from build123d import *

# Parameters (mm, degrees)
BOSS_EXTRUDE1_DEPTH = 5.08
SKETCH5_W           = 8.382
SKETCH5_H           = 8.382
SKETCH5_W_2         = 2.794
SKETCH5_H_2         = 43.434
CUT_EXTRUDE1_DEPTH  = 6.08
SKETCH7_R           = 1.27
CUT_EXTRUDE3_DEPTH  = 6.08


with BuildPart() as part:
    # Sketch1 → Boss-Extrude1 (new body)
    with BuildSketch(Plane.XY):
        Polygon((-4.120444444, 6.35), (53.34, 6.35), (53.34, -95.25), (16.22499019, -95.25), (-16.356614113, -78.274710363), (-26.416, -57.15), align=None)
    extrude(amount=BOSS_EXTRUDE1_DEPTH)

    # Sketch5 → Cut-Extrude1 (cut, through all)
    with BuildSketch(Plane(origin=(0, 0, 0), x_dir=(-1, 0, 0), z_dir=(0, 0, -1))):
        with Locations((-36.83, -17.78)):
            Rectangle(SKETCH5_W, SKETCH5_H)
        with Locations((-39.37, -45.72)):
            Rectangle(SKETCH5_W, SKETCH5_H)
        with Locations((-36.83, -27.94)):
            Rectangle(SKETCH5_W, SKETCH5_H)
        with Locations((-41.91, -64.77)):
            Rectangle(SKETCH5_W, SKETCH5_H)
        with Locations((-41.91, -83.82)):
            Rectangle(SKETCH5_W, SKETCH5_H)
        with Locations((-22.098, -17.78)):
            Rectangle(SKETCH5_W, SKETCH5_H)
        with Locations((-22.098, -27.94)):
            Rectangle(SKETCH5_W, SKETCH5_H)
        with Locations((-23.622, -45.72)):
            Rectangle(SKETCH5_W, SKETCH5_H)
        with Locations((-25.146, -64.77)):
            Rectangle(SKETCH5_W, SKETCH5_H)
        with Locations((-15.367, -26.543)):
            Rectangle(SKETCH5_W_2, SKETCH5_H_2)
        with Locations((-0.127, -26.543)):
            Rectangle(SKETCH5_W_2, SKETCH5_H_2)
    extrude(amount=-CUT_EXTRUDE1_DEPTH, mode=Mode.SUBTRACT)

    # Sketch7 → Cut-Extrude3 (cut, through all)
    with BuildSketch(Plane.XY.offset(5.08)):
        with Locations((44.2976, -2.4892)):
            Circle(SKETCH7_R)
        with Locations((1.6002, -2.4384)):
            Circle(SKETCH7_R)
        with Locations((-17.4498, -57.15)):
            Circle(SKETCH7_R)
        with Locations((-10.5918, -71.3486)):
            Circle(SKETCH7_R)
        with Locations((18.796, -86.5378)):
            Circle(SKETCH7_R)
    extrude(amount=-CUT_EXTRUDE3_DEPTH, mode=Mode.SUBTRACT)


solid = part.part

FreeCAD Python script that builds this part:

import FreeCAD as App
import Part
import Sketcher

V = App.Vector
Q = App.Units.Quantity


def add_polygon(sketch, points):
    """Adds a closed chain of lines whose ends are joined by coincident constraints."""
    first, n = sketch.GeometryCount, len(points)
    for a, b in zip(points, points[1:] + points[:1]):
        sketch.addGeometry(Part.LineSegment(App.Vector(*a, 0), App.Vector(*b, 0)), False)
    for i in range(n):
        sketch.addConstraint(Sketcher.Constraint("Coincident", first + i, 2, first + (i + 1) % n, 1))

doc = App.newDocument("Part")
body = doc.addObject("PartDesign::Body", "Body")

sketch1 = doc.addObject("Sketcher::SketchObject", "Sketch")
body.addObject(sketch1)
sketch1.AttachmentSupport = (doc.XY_Plane, [""])
sketch1.MapMode = "FlatFace"
add_polygon(sketch1, [(53, 6), (-4, 6), (-26, -57), (-16, -78), (16, -95), (53, -95)])
sketch1.addConstraint([
    Sketcher.Constraint("Horizontal", 0),
    Sketcher.Constraint("Horizontal", 4),
    Sketcher.Constraint("Vertical", 5),
    Sketcher.Constraint("DistanceY", 5, 1, 5, 2, Q("4 in")),
    Sketcher.Constraint("DistanceX", -1, 1, 4, 2, Q("2.1 in")),
    Sketcher.Constraint("DistanceY", 1, 2, 0, 2, Q("2.5 in")),
    Sketcher.Constraint("DistanceY", -1, 1, 0, 2, Q("0.25 in")),
    Sketcher.Constraint("DistanceX", 1, 2, -1, 1, Q("1.04 in")),
    Sketcher.Constraint("DistanceX", 4, 1, 4, 2, Q("37.11501 mm")),
    Sketcher.Constraint("DistanceX", 0, 2, 0, 1, Q("57.460444 mm")),
    Sketcher.Constraint("DistanceY", 2, 2, -1, 1, Q("78.27471 mm")),
    Sketcher.Constraint("DistanceX", 2, 2, 0, 2, Q("12.23617 mm")),
])
pad1 = doc.addObject("PartDesign::Pad", "Pad")
body.addObject(pad1)
pad1.Profile = sketch1
pad1.Length = Q("0.2 in")

sketch2 = doc.addObject("Sketcher::SketchObject", "Sketch001")
body.addObject(sketch2)
sketch2.AttachmentSupport = (doc.XY_Plane, [""])
sketch2.MapMode = "FlatFace"
add_polygon(sketch2, [(41, -13.6), (41, -22), (32.6, -22), (32.6, -13.6)])
add_polygon(sketch2, [(43.6, -41.5), (43.6, -49.9), (35.2, -49.9), (35.2, -41.5)])
add_polygon(sketch2, [(41, -23.7), (41, -32.1), (32.6, -32.1), (32.6, -23.7)])
add_polygon(sketch2, [(46.1, -60.6), (46.1, -69), (37.7, -69), (37.7, -60.6)])
add_polygon(sketch2, [(46.1, -79.6), (46.1, -88), (37.7, -88), (37.7, -79.6)])
add_polygon(sketch2, [(26.3, -13.6), (26.3, -22), (17.9, -22), (17.9, -13.6)])
add_polygon(sketch2, [(26.3, -23.7), (26.3, -32.1), (17.9, -32.1), (17.9, -23.7)])
add_polygon(sketch2, [(27.8, -41.5), (27.8, -49.9), (19.4, -49.9), (19.4, -41.5)])
add_polygon(sketch2, [(29.3, -60.6), (29.3, -69), (21, -69), (21, -60.6)])
add_polygon(sketch2, [(16.8, -4.8), (16.8, -48.3), (14, -48.3), (14, -4.8)])
add_polygon(sketch2, [(1.5, -4.8), (1.5, -48.3), (-1.3, -48.3), (-1.3, -4.8)])
sketch2.addConstraint([
    Sketcher.Constraint("Vertical", 0),
    Sketcher.Constraint("Horizontal", 1),
    Sketcher.Constraint("Vertical", 2),
    Sketcher.Constraint("Horizontal", 3),
    Sketcher.Constraint("Vertical", 4),
    Sketcher.Constraint("Horizontal", 5),
    Sketcher.Constraint("Vertical", 6),
    Sketcher.Constraint("Horizontal", 7),
    Sketcher.Constraint("Vertical", 8),
    Sketcher.Constraint("Horizontal", 9),
    Sketcher.Constraint("Vertical", 10),
    Sketcher.Constraint("Horizontal", 11),
    Sketcher.Constraint("Vertical", 12),
    Sketcher.Constraint("Horizontal", 13),
    Sketcher.Constraint("Vertical", 14),
    Sketcher.Constraint("Horizontal", 15),
    Sketcher.Constraint("Vertical", 16),
    Sketcher.Constraint("Horizontal", 17),
    Sketcher.Constraint("Vertical", 18),
    Sketcher.Constraint("Horizontal", 19),
    Sketcher.Constraint("Vertical", 20),
    Sketcher.Constraint("Horizontal", 21),
    Sketcher.Constraint("Vertical", 22),
    Sketcher.Constraint("Horizontal", 23),
    Sketcher.Constraint("Vertical", 24),
    Sketcher.Constraint("Horizontal", 25),
    Sketcher.Constraint("Vertical", 26),
    Sketcher.Constraint("Horizontal", 27),
    Sketcher.Constraint("Vertical", 28),
    Sketcher.Constraint("Horizontal", 29),
    Sketcher.Constraint("Vertical", 30),
    Sketcher.Constraint("Horizontal", 31),
    Sketcher.Constraint("Vertical", 32),
    Sketcher.Constraint("Horizontal", 33),
    Sketcher.Constraint("Vertical", 34),
    Sketcher.Constraint("Horizontal", 35),
    Sketcher.Constraint("Vertical", 36),
    Sketcher.Constraint("Horizontal", 37),
    Sketcher.Constraint("Vertical", 38),
    Sketcher.Constraint("Horizontal", 39),
    Sketcher.Constraint("Vertical", 40),
    Sketcher.Constraint("Horizontal", 41),
    Sketcher.Constraint("Vertical", 42),
    Sketcher.Constraint("Horizontal", 43),
    Sketcher.Constraint("Horizontal", 1, 2, 20, 2),
    Sketcher.Constraint("Horizontal", 3, 2, 22, 2),
    Sketcher.Constraint("Horizontal", 9, 2, 24, 2),
    Sketcher.Constraint("Horizontal", 11, 2, 26, 2),
    Sketcher.Constraint("Horizontal", 5, 2, 28, 2),
    Sketcher.Constraint("Horizontal", 7, 2, 30, 2),
    Sketcher.Constraint("Horizontal", 13, 2, 32, 2),
    Sketcher.Constraint("Horizontal", 15, 2, 34, 2),
    Sketcher.Constraint("Horizontal", 37, 2, 40, 2),
    Sketcher.Constraint("Horizontal", 39, 2, 42, 2),
    Sketcher.Constraint("Vertical", 3, 2, 8, 2),
    Sketcher.Constraint("Vertical", 2, 2, 9, 2),
    Sketcher.Constraint("Vertical", 15, 2, 16, 2),
    Sketcher.Constraint("Vertical", 14, 2, 17, 2),
    Sketcher.Constraint("Vertical", 23, 2, 24, 2),
    Sketcher.Constraint("Vertical", 22, 2, 25, 2),
    Sketcher.Constraint("Equal", 3, 5),
    Sketcher.Constraint("Equal", 11, 13),
    Sketcher.Constraint("Equal", 19, 21),
    Sketcher.Constraint("Equal", 27, 29),
    Sketcher.Constraint("Equal", 31, 33),
    Sketcher.Constraint("Equal", 39, 41),
    Sketcher.Constraint("Equal", 35, 0),
    Sketcher.Constraint("Equal", 2, 4),
    Sketcher.Constraint("Equal", 6, 8),
    Sketcher.Constraint("Equal", 10, 12),
    Sketcher.Constraint("Equal", 14, 16),
    Sketcher.Constraint("DistanceX", 1, 2, 1, 1, Q("0.33 in")),
    Sketcher.Constraint("DistanceX", 37, 2, 37, 1, Q("0.11 in")),
    Sketcher.Constraint("DistanceY", 36, 2, 36, 1, Q("1.71 in")),
    Sketcher.Constraint("DistanceY", 36, 2, -1, 1, Q("1.9 in")),
    Sketcher.Constraint("DistanceX", 0, 2, 4, 2, Q("0.1 in")),
    Sketcher.Constraint("DistanceY", 4, 2, 0, 2, Q("1.1 in")),
    Sketcher.Constraint("DistanceY", 8, 2, 0, 2, Q("0.4 in")),
    Sketcher.Constraint("DistanceX", 4, 2, 12, 2, Q("0.1 in")),
    Sketcher.Constraint("DistanceY", 16, 2, 4, 2, Q("1.5 in")),
    Sketcher.Constraint("DistanceX", 40, 2, 36, 2, Q("0.6 in")),
    Sketcher.Constraint("DistanceX", -1, 1, 36, 2, Q("0.66 in")),
    Sketcher.Constraint("DistanceY", 12, 2, 4, 2, Q("0.75 in")),
    Sketcher.Constraint("DistanceX", 20, 2, 1, 2, Q("0.25 in")),
    Sketcher.Constraint("DistanceX", 28, 2, 5, 2, Q("0.29 in")),
    Sketcher.Constraint("DistanceX", 32, 2, 13, 2, Q("0.33 in")),
    Sketcher.Constraint("DistanceX", -1, 1, 0, 2, Q("1.615 in")),
    Sketcher.Constraint("DistanceY", 0, 2, -1, 1, Q("0.865 in")),
])
pocket1 = doc.addObject("PartDesign::Pocket", "Pocket")
body.addObject(pocket1)
pocket1.Profile = sketch2
pocket1.Type = "ThroughAll"
pocket1.Reversed = True

sketch3 = doc.addObject("Sketcher::SketchObject", "Sketch002")
body.addObject(sketch3)
sketch3.AttachmentSupport = (doc.XY_Plane, [""])
sketch3.MapMode = "FlatFace"
sketch3.AttachmentOffset = App.Placement(V(0, 0, 0.2 * 25.4), App.Rotation())
sketch3.addGeometry([
    Part.Circle(V(44.3, -2.5, 0), V(0, 0, 1), 1.3),
    Part.Circle(V(1.6, -2.4, 0), V(0, 0, 1), 1.3),
    Part.Circle(V(-17.4, -57.1, 0), V(0, 0, 1), 1.3),
    Part.Circle(V(-10.6, -71.3, 0), V(0, 0, 1), 1.3),
    Part.Circle(V(18.8, -86.5, 0), V(0, 0, 1), 1.3),
], False)
sketch3.addConstraint([
    Sketcher.Constraint("Equal", 0, 1),
    Sketcher.Constraint("Equal", 1, 2),
    Sketcher.Constraint("Equal", 2, 3),
    Sketcher.Constraint("Equal", 3, 4),
    Sketcher.Constraint("Diameter", 0, Q("0.1 in")),
    Sketcher.Constraint("DistanceY", 2, 3, -1, 1, Q("2.25 in")),
    Sketcher.Constraint("DistanceX", -1, 1, 4, 3, Q("0.74 in")),
    Sketcher.Constraint("DistanceX", 2, 3, 1, 3, Q("0.75 in")),
    Sketcher.Constraint("DistanceX", 2, 3, 3, 3, Q("0.27 in")),
    Sketcher.Constraint("DistanceX", -1, 1, 0, 3, Q("1.744 in")),
    Sketcher.Constraint("DistanceY", 0, 3, -1, 1, Q("0.098 in")),
    Sketcher.Constraint("DistanceX", -1, 1, 1, 3, Q("0.063 in")),
    Sketcher.Constraint("DistanceY", 1, 3, -1, 1, Q("0.096 in")),
    Sketcher.Constraint("DistanceY", 3, 3, -1, 1, Q("2.809 in")),
    Sketcher.Constraint("DistanceY", 4, 3, -1, 1, Q("3.407 in")),
])
pocket2 = doc.addObject("PartDesign::Pocket", "Pocket001")
body.addObject(pocket2)
pocket2.Profile = sketch3
pocket2.Type = "ThroughAll"

doc.recompute()
